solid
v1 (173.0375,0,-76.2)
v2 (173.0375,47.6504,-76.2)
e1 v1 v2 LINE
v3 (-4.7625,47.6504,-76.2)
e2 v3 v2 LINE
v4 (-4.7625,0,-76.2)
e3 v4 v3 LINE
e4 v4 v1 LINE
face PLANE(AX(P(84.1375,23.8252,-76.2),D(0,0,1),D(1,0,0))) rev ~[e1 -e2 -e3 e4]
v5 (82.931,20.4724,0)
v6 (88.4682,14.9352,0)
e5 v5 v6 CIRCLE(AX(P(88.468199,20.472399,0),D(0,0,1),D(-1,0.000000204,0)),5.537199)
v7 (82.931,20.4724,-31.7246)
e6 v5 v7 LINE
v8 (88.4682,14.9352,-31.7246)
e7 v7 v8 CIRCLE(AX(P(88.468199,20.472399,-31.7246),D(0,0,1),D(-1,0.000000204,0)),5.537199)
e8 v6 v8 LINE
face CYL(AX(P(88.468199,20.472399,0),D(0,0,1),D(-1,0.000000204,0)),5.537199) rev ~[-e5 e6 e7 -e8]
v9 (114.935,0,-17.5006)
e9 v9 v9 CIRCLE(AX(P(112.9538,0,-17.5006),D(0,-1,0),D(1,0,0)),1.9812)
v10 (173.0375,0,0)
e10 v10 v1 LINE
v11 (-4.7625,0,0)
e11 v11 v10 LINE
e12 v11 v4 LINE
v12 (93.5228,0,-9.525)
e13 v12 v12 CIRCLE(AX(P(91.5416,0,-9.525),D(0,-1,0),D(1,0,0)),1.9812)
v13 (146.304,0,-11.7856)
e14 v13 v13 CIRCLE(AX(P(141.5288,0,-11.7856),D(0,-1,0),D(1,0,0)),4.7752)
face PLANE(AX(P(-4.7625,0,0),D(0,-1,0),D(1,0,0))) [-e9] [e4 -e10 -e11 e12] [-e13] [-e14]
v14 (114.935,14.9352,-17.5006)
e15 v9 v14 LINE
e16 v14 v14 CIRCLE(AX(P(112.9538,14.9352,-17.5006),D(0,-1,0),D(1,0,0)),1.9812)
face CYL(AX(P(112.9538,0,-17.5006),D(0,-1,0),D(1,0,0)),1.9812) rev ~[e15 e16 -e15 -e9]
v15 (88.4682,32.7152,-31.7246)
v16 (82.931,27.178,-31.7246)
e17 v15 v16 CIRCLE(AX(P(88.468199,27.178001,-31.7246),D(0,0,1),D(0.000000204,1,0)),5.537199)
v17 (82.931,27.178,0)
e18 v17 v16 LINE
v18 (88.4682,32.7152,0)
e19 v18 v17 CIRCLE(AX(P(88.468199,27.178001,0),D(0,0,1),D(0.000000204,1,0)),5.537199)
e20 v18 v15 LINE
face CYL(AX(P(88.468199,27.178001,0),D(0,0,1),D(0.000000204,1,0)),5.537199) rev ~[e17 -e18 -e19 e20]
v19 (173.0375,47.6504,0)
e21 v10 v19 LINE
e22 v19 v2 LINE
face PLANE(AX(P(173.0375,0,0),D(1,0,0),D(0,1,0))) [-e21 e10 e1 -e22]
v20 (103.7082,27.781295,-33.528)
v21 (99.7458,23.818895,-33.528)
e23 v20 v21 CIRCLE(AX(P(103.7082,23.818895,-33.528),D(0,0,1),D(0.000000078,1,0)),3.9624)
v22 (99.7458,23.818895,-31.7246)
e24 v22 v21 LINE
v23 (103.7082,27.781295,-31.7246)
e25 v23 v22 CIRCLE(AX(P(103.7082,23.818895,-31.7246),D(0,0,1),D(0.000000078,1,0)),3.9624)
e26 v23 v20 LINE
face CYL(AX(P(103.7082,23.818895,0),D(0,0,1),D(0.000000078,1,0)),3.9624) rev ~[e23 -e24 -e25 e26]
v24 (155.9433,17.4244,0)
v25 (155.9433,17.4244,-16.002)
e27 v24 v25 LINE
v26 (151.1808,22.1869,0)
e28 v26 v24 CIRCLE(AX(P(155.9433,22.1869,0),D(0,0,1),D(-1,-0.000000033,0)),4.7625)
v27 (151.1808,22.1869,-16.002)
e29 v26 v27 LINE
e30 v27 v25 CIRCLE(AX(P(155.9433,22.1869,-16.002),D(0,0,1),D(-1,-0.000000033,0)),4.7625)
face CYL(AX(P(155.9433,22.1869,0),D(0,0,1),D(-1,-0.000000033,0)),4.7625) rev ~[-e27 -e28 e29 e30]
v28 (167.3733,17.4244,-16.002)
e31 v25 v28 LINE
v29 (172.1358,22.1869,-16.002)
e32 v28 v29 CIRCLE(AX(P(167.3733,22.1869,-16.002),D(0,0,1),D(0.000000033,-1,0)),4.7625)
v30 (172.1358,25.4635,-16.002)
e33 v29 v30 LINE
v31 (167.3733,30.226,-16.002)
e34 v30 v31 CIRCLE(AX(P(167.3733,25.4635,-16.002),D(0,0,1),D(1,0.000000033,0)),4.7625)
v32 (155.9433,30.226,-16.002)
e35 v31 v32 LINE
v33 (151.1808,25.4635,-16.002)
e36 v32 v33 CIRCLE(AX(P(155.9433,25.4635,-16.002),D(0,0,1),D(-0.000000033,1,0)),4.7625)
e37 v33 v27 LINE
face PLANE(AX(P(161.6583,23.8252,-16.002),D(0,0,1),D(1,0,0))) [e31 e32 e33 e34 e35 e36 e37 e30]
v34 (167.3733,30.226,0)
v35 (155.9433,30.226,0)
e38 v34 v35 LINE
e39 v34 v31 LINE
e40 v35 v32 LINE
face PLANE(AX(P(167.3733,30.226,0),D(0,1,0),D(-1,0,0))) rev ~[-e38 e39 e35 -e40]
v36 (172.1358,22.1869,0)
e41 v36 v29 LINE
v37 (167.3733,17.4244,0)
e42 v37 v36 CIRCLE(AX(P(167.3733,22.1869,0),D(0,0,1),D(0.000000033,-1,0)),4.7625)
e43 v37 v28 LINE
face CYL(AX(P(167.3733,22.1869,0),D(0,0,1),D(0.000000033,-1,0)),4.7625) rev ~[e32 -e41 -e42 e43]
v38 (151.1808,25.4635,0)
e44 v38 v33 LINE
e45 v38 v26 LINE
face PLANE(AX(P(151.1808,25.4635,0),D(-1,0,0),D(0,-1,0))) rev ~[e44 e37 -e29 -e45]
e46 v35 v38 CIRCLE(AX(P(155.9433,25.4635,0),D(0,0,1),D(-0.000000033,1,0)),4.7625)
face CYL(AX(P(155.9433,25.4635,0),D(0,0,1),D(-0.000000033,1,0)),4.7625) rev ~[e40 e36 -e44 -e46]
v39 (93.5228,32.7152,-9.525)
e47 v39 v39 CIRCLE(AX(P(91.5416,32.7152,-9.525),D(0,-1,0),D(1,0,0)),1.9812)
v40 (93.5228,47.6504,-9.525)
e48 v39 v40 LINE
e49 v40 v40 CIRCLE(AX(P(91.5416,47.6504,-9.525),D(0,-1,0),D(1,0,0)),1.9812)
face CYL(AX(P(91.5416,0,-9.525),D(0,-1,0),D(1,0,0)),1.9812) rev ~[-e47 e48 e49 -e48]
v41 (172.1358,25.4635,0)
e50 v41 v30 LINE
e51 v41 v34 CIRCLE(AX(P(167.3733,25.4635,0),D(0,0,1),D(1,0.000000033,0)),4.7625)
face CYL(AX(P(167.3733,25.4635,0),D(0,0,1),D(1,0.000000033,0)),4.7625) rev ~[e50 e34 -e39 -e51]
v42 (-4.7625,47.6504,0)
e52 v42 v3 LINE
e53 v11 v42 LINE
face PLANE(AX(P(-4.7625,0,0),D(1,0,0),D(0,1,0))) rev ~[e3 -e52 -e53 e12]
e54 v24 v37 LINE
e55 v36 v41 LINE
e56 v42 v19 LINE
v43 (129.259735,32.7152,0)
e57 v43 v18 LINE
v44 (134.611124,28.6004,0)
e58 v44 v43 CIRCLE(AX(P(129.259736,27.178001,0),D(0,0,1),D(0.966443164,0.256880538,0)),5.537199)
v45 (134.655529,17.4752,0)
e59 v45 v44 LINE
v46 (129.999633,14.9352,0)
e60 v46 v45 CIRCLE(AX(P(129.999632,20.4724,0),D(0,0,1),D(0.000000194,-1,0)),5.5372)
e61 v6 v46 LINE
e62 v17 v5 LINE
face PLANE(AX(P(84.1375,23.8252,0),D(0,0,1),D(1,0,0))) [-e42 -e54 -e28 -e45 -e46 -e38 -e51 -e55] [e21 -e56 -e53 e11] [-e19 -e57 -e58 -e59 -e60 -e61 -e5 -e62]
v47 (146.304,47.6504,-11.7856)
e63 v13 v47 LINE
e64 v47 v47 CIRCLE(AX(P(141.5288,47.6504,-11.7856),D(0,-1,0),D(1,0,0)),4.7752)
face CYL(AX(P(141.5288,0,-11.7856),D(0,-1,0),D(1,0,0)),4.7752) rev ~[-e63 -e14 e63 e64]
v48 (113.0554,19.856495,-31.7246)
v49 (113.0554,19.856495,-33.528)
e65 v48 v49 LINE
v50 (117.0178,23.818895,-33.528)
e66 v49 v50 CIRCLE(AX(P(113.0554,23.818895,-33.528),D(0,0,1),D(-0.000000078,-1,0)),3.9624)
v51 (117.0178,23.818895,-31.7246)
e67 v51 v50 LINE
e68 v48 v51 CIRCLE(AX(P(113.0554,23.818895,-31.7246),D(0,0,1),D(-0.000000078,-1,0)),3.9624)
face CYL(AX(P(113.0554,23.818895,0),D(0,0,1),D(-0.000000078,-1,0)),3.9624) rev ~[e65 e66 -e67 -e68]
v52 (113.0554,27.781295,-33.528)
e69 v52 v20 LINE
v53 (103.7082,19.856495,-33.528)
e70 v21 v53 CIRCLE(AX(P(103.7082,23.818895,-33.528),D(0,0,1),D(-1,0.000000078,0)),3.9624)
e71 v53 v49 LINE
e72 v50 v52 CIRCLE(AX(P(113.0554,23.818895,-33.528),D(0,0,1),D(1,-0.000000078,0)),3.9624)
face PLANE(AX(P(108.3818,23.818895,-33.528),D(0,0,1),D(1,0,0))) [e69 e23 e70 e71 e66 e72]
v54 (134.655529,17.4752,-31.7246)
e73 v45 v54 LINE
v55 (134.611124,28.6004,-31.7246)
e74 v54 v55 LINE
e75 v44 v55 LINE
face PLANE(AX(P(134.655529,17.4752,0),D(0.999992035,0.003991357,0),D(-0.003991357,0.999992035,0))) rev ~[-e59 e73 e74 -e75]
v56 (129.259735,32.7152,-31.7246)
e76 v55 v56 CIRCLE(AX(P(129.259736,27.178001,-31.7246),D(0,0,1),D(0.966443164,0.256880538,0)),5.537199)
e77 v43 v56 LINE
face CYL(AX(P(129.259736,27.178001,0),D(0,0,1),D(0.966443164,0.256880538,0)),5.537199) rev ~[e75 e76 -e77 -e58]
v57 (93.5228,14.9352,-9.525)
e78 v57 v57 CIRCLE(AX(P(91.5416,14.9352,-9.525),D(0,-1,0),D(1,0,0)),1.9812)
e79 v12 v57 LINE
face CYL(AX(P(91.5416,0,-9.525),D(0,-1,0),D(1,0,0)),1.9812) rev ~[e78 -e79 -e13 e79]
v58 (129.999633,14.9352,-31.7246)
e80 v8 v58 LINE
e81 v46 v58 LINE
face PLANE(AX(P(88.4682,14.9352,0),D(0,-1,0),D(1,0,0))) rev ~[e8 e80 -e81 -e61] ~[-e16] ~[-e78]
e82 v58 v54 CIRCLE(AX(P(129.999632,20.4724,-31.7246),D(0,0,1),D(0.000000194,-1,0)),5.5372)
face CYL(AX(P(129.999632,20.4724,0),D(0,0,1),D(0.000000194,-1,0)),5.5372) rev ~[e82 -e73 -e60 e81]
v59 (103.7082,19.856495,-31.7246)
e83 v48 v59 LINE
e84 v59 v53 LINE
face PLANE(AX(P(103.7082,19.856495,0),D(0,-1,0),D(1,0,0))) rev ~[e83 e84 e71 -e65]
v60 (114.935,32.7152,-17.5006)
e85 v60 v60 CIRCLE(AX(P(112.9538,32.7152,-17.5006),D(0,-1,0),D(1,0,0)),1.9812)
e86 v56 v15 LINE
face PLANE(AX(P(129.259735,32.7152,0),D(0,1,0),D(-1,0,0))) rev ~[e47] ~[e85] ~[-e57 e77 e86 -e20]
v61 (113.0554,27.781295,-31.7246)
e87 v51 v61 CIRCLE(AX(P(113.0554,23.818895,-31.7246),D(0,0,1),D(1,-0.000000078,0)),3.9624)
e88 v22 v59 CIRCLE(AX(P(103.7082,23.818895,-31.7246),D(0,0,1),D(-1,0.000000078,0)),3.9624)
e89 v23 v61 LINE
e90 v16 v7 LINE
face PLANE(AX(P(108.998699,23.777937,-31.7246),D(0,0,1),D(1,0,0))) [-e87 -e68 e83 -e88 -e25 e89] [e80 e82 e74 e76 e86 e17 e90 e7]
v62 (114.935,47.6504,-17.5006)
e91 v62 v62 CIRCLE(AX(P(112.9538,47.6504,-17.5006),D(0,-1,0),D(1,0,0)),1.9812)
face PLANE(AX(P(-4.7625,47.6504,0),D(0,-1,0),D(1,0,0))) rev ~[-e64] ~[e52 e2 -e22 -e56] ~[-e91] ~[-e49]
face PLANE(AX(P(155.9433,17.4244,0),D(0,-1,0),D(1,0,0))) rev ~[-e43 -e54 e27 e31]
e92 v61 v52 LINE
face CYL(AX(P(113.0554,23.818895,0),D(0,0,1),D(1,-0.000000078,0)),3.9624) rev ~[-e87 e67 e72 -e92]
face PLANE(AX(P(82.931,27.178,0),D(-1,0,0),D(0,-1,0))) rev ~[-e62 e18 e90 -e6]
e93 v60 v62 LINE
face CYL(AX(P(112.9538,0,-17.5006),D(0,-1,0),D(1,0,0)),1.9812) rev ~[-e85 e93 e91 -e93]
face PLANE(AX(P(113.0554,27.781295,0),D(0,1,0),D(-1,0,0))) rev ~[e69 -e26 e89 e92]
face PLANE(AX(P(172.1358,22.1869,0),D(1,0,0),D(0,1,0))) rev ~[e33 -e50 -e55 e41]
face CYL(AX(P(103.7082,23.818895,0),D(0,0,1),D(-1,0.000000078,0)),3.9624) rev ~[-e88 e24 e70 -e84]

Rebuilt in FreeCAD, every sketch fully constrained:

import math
import FreeCAD as App
import Part
import Sketcher

V = App.Vector
Q = App.Units.Quantity

doc = App.newDocument("Part")
body = doc.addObject("PartDesign::Body", "Body")

# Sketch on XY plane
sketch1 = body.newObject("Sketcher::SketchObject", "Sketch")
sketch1.AttachmentSupport = (doc.getObject("XY_Plane"), [""])
sketch1.MapMode = "FlatFace"
sketch1.addGeometry(Part.LineSegment(V(-4.7625, 47.6504, 0), V(-4.7625, 0, 0)), False)
sketch1.addGeometry(Part.LineSegment(V(-4.7625, 0, 0), V(173.0375, 0, 0)), False)
sketch1.addGeometry(Part.LineSegment(V(173.0375, 0, 0), V(173.0375, 47.6504, 0)), False)
sketch1.addGeometry(Part.LineSegment(V(173.0375, 47.6504, 0), V(-4.7625, 47.6504, 0)), False)
sketch1.addConstraint(Sketcher.Constraint("Coincident", 0, 2, 1, 1))
sketch1.addConstraint(Sketcher.Constraint("Coincident", 1, 2, 2, 1))
sketch1.addConstraint(Sketcher.Constraint("Coincident", 2, 2, 3, 1))
sketch1.addConstraint(Sketcher.Constraint("Coincident", 3, 2, 0, 1))
sketch1.addConstraint(Sketcher.Constraint("Vertical", 0))
sketch1.addConstraint(Sketcher.Constraint("Horizontal", 1))
sketch1.addConstraint(Sketcher.Constraint("Vertical", 2))
sketch1.addConstraint(Sketcher.Constraint("Horizontal", 3))
sketch1.addConstraint(Sketcher.Constraint("PointOnObject", 0, 2, -1))
sketch1.addConstraint(Sketcher.Constraint("DistanceX", 1, 1, 1, 2, Q("7 in")))
sketch1.addConstraint(Sketcher.Constraint("DistanceY", 0, 2, 0, 1, Q("1.876 in")))
sketch1.addConstraint(Sketcher.Constraint("DistanceX", 0, 2, -1, 1, Q("0.1875 in")))
pad1 = body.newObject("PartDesign::Pad", "Pad")
pad1.Profile = sketch1
pad1.Length = Q("3 in")
pad1.Reversed = True

# Sketch on XZ plane
sketch2 = body.newObject("Sketcher::SketchObject", "Sketch001")
sketch2.AttachmentSupport = (doc.getObject("XZ_Plane"), [""])
sketch2.MapMode = "FlatFace"
sketch2.addGeometry(Part.Circle(V(141.5288, -11.7856, 0), V(0, 0, 1), 4.7752), False)
sketch2.addGeometry(Part.Circle(V(112.9538, -17.5006, 0), V(0, 0, 1), 1.9812), False)
sketch2.addGeometry(Part.Circle(V(91.5416, -9.525, 0), V(0, 0, 1), 1.9812), False)
sketch2.addConstraint(Sketcher.Constraint("Equal", 1, 2))
sketch2.addConstraint(Sketcher.Constraint("Diameter", 0, Q("0.376 in")))
sketch2.addConstraint(Sketcher.Constraint("Diameter", 1, Q("0.156 in")))
sketch2.addConstraint(Sketcher.Constraint("DistanceX", -1, 1, 0, 3, Q("5.572 in")))
sketch2.addConstraint(Sketcher.Constraint("DistanceY", 0, 3, -1, 1, Q("0.464 in")))
sketch2.addConstraint(Sketcher.Constraint("DistanceX", -1, 1, 1, 3, Q("4.447 in")))
sketch2.addConstraint(Sketcher.Constraint("DistanceY", 1, 3, -1, 1, Q("0.689 in")))
sketch2.addConstraint(Sketcher.Constraint("DistanceX", -1, 1, 2, 3, Q("3.604 in")))
sketch2.addConstraint(Sketcher.Constraint("DistanceY", 2, 3, -1, 1, Q("0.375 in")))
pocket1 = body.newObject("PartDesign::Pocket", "Pocket")
pocket1.Profile = sketch2
pocket1.Type = "ThroughAll"

# Sketch on XY plane
sketch3 = body.newObject("Sketcher::SketchObject", "Sketch002")
sketch3.AttachmentSupport = (doc.getObject("XY_Plane"), [""])
sketch3.MapMode = "FlatFace"
sketch3.addGeometry(Part.LineSegment(V(172.1358, 22.1869, 0), V(172.1358, 25.4635, 0)), False)
sketch3.addGeometry(Part.ArcOfCircle(Part.Circle(V(167.3733, 25.4635, 0), V(0, 0, 1), 4.7625), math.radians(0.000002), math.radians(89.999998)), False)
sketch3.addGeometry(Part.LineSegment(V(167.3733, 30.226, 0), V(155.9433, 30.226, 0)), False)
sketch3.addGeometry(Part.ArcOfCircle(Part.Circle(V(155.9433, 25.4635, 0), V(0, 0, 1), 4.7625), math.radians(90.000002), math.radians(179.999998)), False)
sketch3.addGeometry(Part.LineSegment(V(151.1808, 25.4635, 0), V(151.1808, 22.1869, 0)), False)
sketch3.addGeometry(Part.ArcOfCircle(Part.Circle(V(155.9433, 22.1869, 0), V(0, 0, 1), 4.7625), math.radians(-179.999998), math.radians(-90.000002)), False)
sketch3.addGeometry(Part.LineSegment(V(155.9433, 17.4244, 0), V(167.3733, 17.4244, 0)), False)
sketch3.addGeometry(Part.ArcOfCircle(Part.Circle(V(167.3733, 22.1869, 0), V(0, 0, 1), 4.7625), math.radians(-89.999998), math.radians(-0.000002)), False)
sketch3.addConstraint(Sketcher.Constraint("Tangent", 0, 2, 1, 1))
sketch3.addConstraint(Sketcher.Constraint("Tangent", 1, 2, 2, 1))
sketch3.addConstraint(Sketcher.Constraint("Tangent", 2, 2, 3, 1))
sketch3.addConstraint(Sketcher.Constraint("Tangent", 3, 2, 4, 1))
sketch3.addConstraint(Sketcher.Constraint("Tangent", 4, 2, 5, 1))
sketch3.addConstraint(Sketcher.Constraint("Tangent", 5, 2, 6, 1))
sketch3.addConstraint(Sketcher.Constraint("Tangent", 6, 2, 7, 1))
sketch3.addConstraint(Sketcher.Constraint("Tangent", 7, 2, 0, 1))
sketch3.addConstraint(Sketcher.Constraint("Vertical", 0))
sketch3.addConstraint(Sketcher.Constraint("Horizontal", 2))
sketch3.addConstraint(Sketcher.Constraint("Vertical", 4))
sketch3.addConstraint(Sketcher.Constraint("Horizontal", 6))
sketch3.addConstraint(Sketcher.Constraint("Equal", 1, 3))
sketch3.addConstraint(Sketcher.Constraint("Equal", 3, 5))
sketch3.addConstraint(Sketcher.Constraint("Equal", 5, 7))
sketch3.addConstraint(Sketcher.Constraint("Radius", 1, Q("0.1875 in")))
sketch3.addConstraint(Sketcher.Constraint("DistanceX", 2, 2, 2, 1, Q("0.45 in")))
sketch3.addConstraint(Sketcher.Constraint("DistanceY", 0, 1, 0, 2, Q("0.129 in")))
sketch3.addConstraint(Sketcher.Constraint("DistanceY", -1, 1, 1, 2, Q("1.19 in")))
sketch3.addConstraint(Sketcher.Constraint("DistanceX", -1, 1, 0, 2, Q("6.777 in")))
pocket2 = body.newObject("PartDesign::Pocket", "Pocket001")
pocket2.Profile = sketch3
pocket2.Length = Q("0.63 in")

# Sketch on XY plane
sketch4 = body.newObject("Sketcher::SketchObject", "Sketch003")
sketch4.AttachmentSupport = (doc.getObject("XY_Plane"), [""])
sketch4.MapMode = "FlatFace"
sketch4.addGeometry(Part.LineSegment(V(113.0554, 27.781295, 0), V(103.7082, 27.781295, 0)), False)
sketch4.addGeometry(Part.ArcOfCircle(Part.Circle(V(103.7082, 23.818895, 0), V(0, 0, 1), 3.9624), math.radians(89.999996), math.radians(180.000004)), False)
sketch4.addGeometry(Part.ArcOfCircle(Part.Circle(V(103.7082, 23.818895, 0), V(0, 0, 1), 3.9624), math.radians(179.999996), math.radians(270.000004)), False)
sketch4.addGeometry(Part.LineSegment(V(103.7082, 19.856495, 0), V(113.0554, 19.856495, 0)), False)
sketch4.addGeometry(Part.ArcOfCircle(Part.Circle(V(113.0554, 23.818895, 0), V(0, 0, 1), 3.9624), math.radians(-90.000004), math.radians(0.000004)), False)
sketch4.addGeometry(Part.ArcOfCircle(Part.Circle(V(113.0554, 23.818895, 0), V(0, 0, 1), 3.9624), math.radians(-0.000004), math.radians(90.000004)), False)
sketch4.addConstraint(Sketcher.Constraint("Tangent", 0, 2, 1, 1))
sketch4.addConstraint(Sketcher.Constraint("Tangent", 1, 2, 2, 1))
sketch4.addConstraint(Sketcher.Constraint("Tangent", 2, 2, 3, 1))
sketch4.addConstraint(Sketcher.Constraint("Tangent", 3, 2, 4, 1))
sketch4.addConstraint(Sketcher.Constraint("Tangent", 4, 2, 5, 1))
sketch4.addConstraint(Sketcher.Constraint("Tangent", 5, 2, 0, 1))
sketch4.addConstraint(Sketcher.Constraint("Horizontal", 0))
sketch4.addConstraint(Sketcher.Constraint("Horizontal", 3))
sketch4.addConstraint(Sketcher.Constraint("Equal", 1, 2))
sketch4.addConstraint(Sketcher.Constraint("Equal", 2, 4))
sketch4.addConstraint(Sketcher.Constraint("Horizontal", 5, 3, 1, 2))
sketch4.addConstraint(Sketcher.Constraint("Horizontal", 1, 2, 4, 2))
sketch4.addConstraint(Sketcher.Constraint("Radius", 1, Q("0.156 in")))
sketch4.addConstraint(Sketcher.Constraint("DistanceX", 0, 2, 0, 1, Q("0.368 in")))
sketch4.addConstraint(Sketcher.Constraint("DistanceX", -1, 1, 1, 3, Q("4.083 in")))
sketch4.addConstraint(Sketcher.Constraint("DistanceY", -1, 1, 1, 3, Q("23.818895 mm")))
pocket3 = body.newObject("PartDesign::Pocket", "Pocket002")
pocket3.Profile = sketch4
pocket3.Length = Q("1.32 in")

# Sketch on XY plane
sketch5 = body.newObject("Sketcher::SketchObject", "Sketch004")
sketch5.AttachmentSupport = (doc.getObject("XY_Plane"), [""])
sketch5.MapMode = "FlatFace"
sketch5.addGeometry(Part.LineSegment(V(129.259735, 32.7152, 0), V(88.4682, 32.7152, 0)), False)
sketch5.addGeometry(Part.ArcOfCircle(Part.Circle(V(88.468199, 27.178001, 0), V(0, 0, 1), 5.537199), math.radians(89.999988), math.radians(180.000012)), False)
sketch5.addGeometry(Part.LineSegment(V(82.931, 27.178, 0), V(82.931, 20.4724, 0)), False)
sketch5.addGeometry(Part.ArcOfCircle(Part.Circle(V(88.468199, 20.472399, 0), V(0, 0, 1), 5.537199), math.radians(179.999988), math.radians(270.000012)), False)
sketch5.addGeometry(Part.LineSegment(V(88.4682, 14.9352, 0), V(129.999633, 14.9352, 0)), False)
sketch5.addGeometry(Part.ArcOfCircle(Part.Circle(V(129.999632, 20.4724, 0), V(0, 0, 1), 5.5372), math.radians(-89.999989), math.radians(-32.771118)), False)
sketch5.addGeometry(Part.LineSegment(V(134.655529, 17.4752, 0), V(134.611124, 28.6004, 0)), False)
sketch5.addGeometry(Part.ArcOfCircle(Part.Circle(V(129.259736, 27.178001, 0), V(0, 0, 1), 5.537199), math.radians(14.885044), math.radians(90.000014)), False)
sketch5.addConstraint(Sketcher.Constraint("Tangent", 0, 2, 1, 1))
sketch5.addConstraint(Sketcher.Constraint("Tangent", 1, 2, 2, 1))
sketch5.addConstraint(Sketcher.Constraint("Tangent", 2, 2, 3, 1))
sketch5.addConstraint(Sketcher.Constraint("Tangent", 3, 2, 4, 1))
sketch5.addConstraint(Sketcher.Constraint("Tangent", 4, 2, 5, 1))
sketch5.addConstraint(Sketcher.Constraint("Coincident", 5, 2, 6, 1))
sketch5.addConstraint(Sketcher.Constraint("Coincident", 6, 2, 7, 1))
sketch5.addConstraint(Sketcher.Constraint("Tangent", 7, 2, 0, 1))
sketch5.addConstraint(Sketcher.Constraint("Horizontal", 0))
sketch5.addConstraint(Sketcher.Constraint("Vertical", 2))
sketch5.addConstraint(Sketcher.Constraint("Horizontal", 4))
sketch5.addConstraint(Sketcher.Constraint("Equal", 1, 3))
sketch5.addConstraint(Sketcher.Constraint("Equal", 3, 5))
sketch5.addConstraint(Sketcher.Constraint("Equal", 5, 7))
sketch5.addConstraint(Sketcher.Constraint("Radius", 1, Q("0.218 in")))
sketch5.addConstraint(Sketcher.Constraint("DistanceY", 3, 2, 0, 2, Q("0.7 in")))
sketch5.addConstraint(Sketcher.Constraint("DistanceY", 4, 2, 5, 2, Q("0.1 in")))
sketch5.addConstraint(Sketcher.Constraint("DistanceY", -1, 1, 1, 3, Q("1.07 in")))
sketch5.addConstraint(Sketcher.Constraint("DistanceY", 5, 3, 6, 2, Q("0.32 in")))
sketch5.addConstraint(Sketcher.Constraint("DistanceX", -1, 1, 1, 3, Q("3.483 in")))
sketch5.addConstraint(Sketcher.Constraint("Distance", 6, Q("11.125289 mm")))
sketch5.addConstraint(Sketcher.Constraint("DistanceX", 0, 2, 0, 1, Q("40.791535 mm")))
pocket4 = body.newObject("PartDesign::Pocket", "Pocket003")
pocket4.Profile = sketch5
pocket4.Length = Q("1.249 in")

doc.recompute()
